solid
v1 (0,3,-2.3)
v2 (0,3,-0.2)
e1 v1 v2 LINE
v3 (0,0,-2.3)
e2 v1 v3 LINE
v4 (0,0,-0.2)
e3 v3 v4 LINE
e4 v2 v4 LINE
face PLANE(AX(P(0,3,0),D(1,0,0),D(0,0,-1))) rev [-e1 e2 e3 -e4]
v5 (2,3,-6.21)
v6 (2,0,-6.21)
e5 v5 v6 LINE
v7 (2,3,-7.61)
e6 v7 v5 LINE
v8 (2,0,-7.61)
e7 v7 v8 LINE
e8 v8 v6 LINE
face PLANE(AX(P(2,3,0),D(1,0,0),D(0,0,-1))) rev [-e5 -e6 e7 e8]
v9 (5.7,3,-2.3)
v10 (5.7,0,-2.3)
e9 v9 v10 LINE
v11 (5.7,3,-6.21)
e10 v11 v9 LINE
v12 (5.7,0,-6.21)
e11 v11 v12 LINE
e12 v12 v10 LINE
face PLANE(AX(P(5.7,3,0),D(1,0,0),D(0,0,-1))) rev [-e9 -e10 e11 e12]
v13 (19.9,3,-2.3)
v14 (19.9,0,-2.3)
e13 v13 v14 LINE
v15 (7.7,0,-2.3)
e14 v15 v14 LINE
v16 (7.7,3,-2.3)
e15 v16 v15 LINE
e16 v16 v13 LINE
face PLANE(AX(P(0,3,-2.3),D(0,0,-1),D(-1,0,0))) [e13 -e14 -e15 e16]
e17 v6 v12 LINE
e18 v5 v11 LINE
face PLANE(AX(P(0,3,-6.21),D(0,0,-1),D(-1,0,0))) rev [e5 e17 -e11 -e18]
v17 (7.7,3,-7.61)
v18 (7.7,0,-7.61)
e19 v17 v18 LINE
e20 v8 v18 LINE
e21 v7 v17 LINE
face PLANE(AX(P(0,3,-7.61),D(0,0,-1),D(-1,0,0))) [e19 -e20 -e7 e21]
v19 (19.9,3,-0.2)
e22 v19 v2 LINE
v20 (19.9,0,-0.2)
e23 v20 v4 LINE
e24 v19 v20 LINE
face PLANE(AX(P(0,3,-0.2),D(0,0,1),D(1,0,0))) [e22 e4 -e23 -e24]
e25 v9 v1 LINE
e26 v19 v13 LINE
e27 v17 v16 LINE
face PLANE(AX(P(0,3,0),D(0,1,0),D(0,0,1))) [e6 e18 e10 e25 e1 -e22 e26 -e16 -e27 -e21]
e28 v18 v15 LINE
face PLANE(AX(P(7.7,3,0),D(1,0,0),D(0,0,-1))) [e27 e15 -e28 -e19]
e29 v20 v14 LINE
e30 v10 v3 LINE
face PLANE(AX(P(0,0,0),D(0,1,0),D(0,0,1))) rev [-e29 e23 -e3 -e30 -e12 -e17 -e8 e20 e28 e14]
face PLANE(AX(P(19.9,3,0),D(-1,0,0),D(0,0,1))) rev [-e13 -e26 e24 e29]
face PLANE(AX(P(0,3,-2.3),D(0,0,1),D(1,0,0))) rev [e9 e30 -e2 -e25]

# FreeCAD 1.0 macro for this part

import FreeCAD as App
import Part
import Sketcher

V = App.Vector
Q = App.Units.Quantity


def add_polygon(sketch, points):
    """Adds a closed chain of lines whose ends are joined by coincident constraints."""
    first, n = sketch.GeometryCount, len(points)
    for a, b in zip(points, points[1:] + points[:1]):
        sketch.addGeometry(Part.LineSegment(App.Vector(*a, 0), App.Vector(*b, 0)), False)
    for i in range(n):
        sketch.addConstraint(Sketcher.Constraint("Coincident", first + i, 2, first + (i + 1) % n, 1))

doc = App.newDocument("Part")
body = doc.addObject("PartDesign::Body", "Body")

# Sketch on XZ plane
sketch1 = body.newObject("Sketcher::SketchObject", "Sketch")
sketch1.AttachmentSupport = (doc.getObject("XZ_Plane"), [""])
sketch1.MapMode = "FlatFace"
add_polygon(sketch1, [(0, -2.3), (0, -0.2), (19.9, -0.2), (19.9, -2.3), (7.7, -2.3), (7.7, -7.6), (2, -7.6), (2, -6.2), (5.7, -6.2), (5.7, -2.3)])  # lines 0-9
sketch1.addConstraint([
    Sketcher.Constraint("Vertical", 0),
    Sketcher.Constraint("Horizontal", 1),
    Sketcher.Constraint("Vertical", 2),
    Sketcher.Constraint("Horizontal", 3),
    Sketcher.Constraint("Vertical", 4),
    Sketcher.Constraint("Horizontal", 5),
    Sketcher.Constraint("Vertical", 6),
    Sketcher.Constraint("Horizontal", 7),
    Sketcher.Constraint("Vertical", 8),
    Sketcher.Constraint("Horizontal", 9),
    Sketcher.Constraint("PointOnObject", 0, 2, -2),
    Sketcher.Constraint("Horizontal", 3, 2, 8, 2),
    Sketcher.Constraint("Equal", 5, 9),
    Sketcher.Constraint("DistanceX", 1, 1, 1, 2, Q("19.9 mm")),
    Sketcher.Constraint("DistanceX", 3, 2, 3, 1, Q("12.2 mm")),
    Sketcher.Constraint("DistanceX", 5, 2, 5, 1, Q("5.7 mm")),
    Sketcher.Constraint("DistanceY", 0, 1, 0, 2, Q("2.1 mm")),
    Sketcher.Constraint("DistanceY", 6, 1, 6, 2, Q("1.4 mm")),
    Sketcher.Constraint("DistanceY", 4, 2, 4, 1, Q("5.31 mm")),
    Sketcher.Constraint("DistanceY", 0, 2, -1, 1, Q("0.2 mm")),
])
pad1 = body.newObject("PartDesign::Pad", "Pad")
pad1.Profile = sketch1
pad1.Length = 3
pad1.Reversed = True

doc.recompute()
